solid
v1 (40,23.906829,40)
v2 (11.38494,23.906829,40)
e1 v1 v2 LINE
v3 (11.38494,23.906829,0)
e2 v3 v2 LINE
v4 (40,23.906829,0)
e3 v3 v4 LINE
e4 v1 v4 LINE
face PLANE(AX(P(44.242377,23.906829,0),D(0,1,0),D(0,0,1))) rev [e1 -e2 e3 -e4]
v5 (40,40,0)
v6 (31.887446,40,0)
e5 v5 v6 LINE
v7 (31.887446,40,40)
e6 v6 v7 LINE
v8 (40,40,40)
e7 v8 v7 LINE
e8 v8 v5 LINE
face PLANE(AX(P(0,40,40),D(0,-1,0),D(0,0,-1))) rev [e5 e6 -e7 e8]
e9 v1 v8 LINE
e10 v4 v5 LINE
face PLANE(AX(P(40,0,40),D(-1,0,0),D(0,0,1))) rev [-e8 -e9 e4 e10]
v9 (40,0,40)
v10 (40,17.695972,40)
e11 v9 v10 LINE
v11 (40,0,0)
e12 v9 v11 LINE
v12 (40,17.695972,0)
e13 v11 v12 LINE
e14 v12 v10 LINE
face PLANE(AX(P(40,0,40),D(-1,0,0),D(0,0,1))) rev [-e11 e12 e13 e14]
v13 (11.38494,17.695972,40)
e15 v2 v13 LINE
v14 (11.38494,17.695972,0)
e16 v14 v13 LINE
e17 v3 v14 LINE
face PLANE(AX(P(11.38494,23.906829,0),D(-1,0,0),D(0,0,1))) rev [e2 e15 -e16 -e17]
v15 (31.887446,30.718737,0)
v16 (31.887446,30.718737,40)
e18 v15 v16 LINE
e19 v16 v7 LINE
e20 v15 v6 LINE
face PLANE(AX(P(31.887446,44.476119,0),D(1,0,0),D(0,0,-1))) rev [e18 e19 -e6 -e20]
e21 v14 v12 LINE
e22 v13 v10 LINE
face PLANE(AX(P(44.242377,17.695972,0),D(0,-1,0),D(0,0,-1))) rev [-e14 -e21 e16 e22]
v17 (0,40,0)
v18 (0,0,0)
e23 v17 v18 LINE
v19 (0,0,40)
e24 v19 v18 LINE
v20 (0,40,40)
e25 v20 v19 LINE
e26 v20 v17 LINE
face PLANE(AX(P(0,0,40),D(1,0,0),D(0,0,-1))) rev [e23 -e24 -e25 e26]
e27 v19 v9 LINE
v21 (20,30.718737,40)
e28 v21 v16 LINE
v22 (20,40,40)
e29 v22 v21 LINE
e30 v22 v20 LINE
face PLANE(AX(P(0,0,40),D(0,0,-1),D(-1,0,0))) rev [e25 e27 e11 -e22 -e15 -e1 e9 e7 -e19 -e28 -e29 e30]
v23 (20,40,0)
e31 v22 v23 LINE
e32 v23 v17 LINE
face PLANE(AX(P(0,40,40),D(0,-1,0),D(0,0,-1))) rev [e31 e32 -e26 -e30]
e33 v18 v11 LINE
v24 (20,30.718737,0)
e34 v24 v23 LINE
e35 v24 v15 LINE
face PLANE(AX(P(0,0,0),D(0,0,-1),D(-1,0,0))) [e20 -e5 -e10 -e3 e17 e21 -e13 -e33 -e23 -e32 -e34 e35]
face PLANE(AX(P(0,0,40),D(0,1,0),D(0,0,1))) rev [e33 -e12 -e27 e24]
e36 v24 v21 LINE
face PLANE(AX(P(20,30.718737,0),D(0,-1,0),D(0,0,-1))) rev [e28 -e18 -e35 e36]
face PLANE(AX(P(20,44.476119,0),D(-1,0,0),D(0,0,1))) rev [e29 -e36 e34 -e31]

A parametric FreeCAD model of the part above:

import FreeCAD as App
import Part
import Sketcher
from FreeCAD import Vector

doc = App.newDocument("Part")
body = doc.addObject("PartDesign::Body", "Body")

sketch1 = body.newObject("Sketcher::SketchObject", "Sketch")
sketch1.AttachmentSupport = (doc.getObject("XY_Plane"), [""])
sketch1.MapMode = "FlatFace"
sketch1.addGeometry([
    Part.LineSegment(Vector(0, 40, 0), Vector(0, 0, 0)),
    Part.LineSegment(Vector(0, 0, 0), Vector(40, 0, 0)),
    Part.LineSegment(Vector(40, 0, 0), Vector(40, 40, 0)),
    Part.LineSegment(Vector(40, 40, 0), Vector(0, 40, 0)),
], False)
sketch1.addConstraint([
    Sketcher.Constraint("Coincident", 0, 2, 1, 1),
    Sketcher.Constraint("Coincident", 1, 2, 2, 1),
    Sketcher.Constraint("Coincident", 2, 2, 3, 1),
    Sketcher.Constraint("Coincident", 3, 2, 0, 1),
    Sketcher.Constraint("Vertical", 0),
    Sketcher.Constraint("Horizontal", 1),
    Sketcher.Constraint("Vertical", 2),
    Sketcher.Constraint("Horizontal", 3),
    Sketcher.Constraint("Coincident", 0, 2, -1, 1),
    Sketcher.Constraint("Equal", 3, 0),
    Sketcher.Constraint("DistanceX", 1, 1, 1, 2, 40.0),
])
pad1 = body.newObject("PartDesign::Pad", "Pad")
pad1.Profile = sketch1
pad1.Length = 40

sketch2 = body.newObject("Sketcher::SketchObject", "Sketch001")
sketch2.AttachmentSupport = (doc.getObject("XY_Plane"), [""])
sketch2.MapMode = "FlatFace"
sketch2.AttachmentOffset = App.Placement(Vector(0, 0, 40), App.Rotation())
sketch2.addGeometry([
    Part.LineSegment(Vector(20, 44.476119, 0), Vector(20, 30.718737, 0)),
    Part.LineSegment(Vector(20, 30.718737, 0), Vector(31.887446, 30.718737, 0)),
    Part.LineSegment(Vector(31.887446, 30.718737, 0), Vector(31.887446, 44.476119, 0)),
    Part.LineSegment(Vector(31.887446, 44.476119, 0), Vector(20, 44.476119, 0)),
    Part.LineSegment(Vector(11.38494, 23.906829, 0), Vector(11.38494, 17.695972, 0)),
    Part.LineSegment(Vector(11.38494, 17.695972, 0), Vector(44.242377, 17.695972, 0)),
    Part.LineSegment(Vector(44.242377, 17.695972, 0), Vector(44.242377, 23.906829, 0)),
    Part.LineSegment(Vector(44.242377, 23.906829, 0), Vector(11.38494, 23.906829, 0)),
], False)
sketch2.addConstraint([
    Sketcher.Constraint("Coincident", 0, 2, 1, 1),
    Sketcher.Constraint("Coincident", 1, 2, 2, 1),
    Sketcher.Constraint("Coincident", 2, 2, 3, 1),
    Sketcher.Constraint("Coincident", 3, 2, 0, 1),
    Sketcher.Constraint("Coincident", 4, 2, 5, 1),
    Sketcher.Constraint("Coincident", 5, 2, 6, 1),
    Sketcher.Constraint("Coincident", 6, 2, 7, 1),
    Sketcher.Constraint("Coincident", 7, 2, 4, 1),
    Sketcher.Constraint("Vertical", 0),
    Sketcher.Constraint("Horizontal", 1),
    Sketcher.Constraint("Vertical", 2),
    Sketcher.Constraint("Horizontal", 3),
    Sketcher.Constraint("Vertical", 4),
    Sketcher.Constraint("Horizontal", 5),
    Sketcher.Constraint("Vertical", 6),
    Sketcher.Constraint("Horizontal", 7),
    Sketcher.Constraint("DistanceX", -1, 1, 0, 2, 20.0),
    Sketcher.Constraint("DistanceY", 0, 2, 0, 1, 13.757382),
    Sketcher.Constraint("DistanceX", 1, 1, 1, 2, 11.887446),
    Sketcher.Constraint("DistanceX", 5, 1, 5, 2, 32.857436),
    Sketcher.Constraint("DistanceY", 4, 2, 4, 1, 6.210857),
    Sketcher.Constraint("DistanceY", -1, 1, 2, 2, 44.476119),
    Sketcher.Constraint("DistanceX", -1, 1, 4, 2, 11.38494),
    Sketcher.Constraint("DistanceY", -1, 1, 6, 2, 23.906829),
])
pocket1 = body.newObject("PartDesign::Pocket", "Pocket")
pocket1.Profile = sketch2
pocket1.Length = 40

doc.recompute()
